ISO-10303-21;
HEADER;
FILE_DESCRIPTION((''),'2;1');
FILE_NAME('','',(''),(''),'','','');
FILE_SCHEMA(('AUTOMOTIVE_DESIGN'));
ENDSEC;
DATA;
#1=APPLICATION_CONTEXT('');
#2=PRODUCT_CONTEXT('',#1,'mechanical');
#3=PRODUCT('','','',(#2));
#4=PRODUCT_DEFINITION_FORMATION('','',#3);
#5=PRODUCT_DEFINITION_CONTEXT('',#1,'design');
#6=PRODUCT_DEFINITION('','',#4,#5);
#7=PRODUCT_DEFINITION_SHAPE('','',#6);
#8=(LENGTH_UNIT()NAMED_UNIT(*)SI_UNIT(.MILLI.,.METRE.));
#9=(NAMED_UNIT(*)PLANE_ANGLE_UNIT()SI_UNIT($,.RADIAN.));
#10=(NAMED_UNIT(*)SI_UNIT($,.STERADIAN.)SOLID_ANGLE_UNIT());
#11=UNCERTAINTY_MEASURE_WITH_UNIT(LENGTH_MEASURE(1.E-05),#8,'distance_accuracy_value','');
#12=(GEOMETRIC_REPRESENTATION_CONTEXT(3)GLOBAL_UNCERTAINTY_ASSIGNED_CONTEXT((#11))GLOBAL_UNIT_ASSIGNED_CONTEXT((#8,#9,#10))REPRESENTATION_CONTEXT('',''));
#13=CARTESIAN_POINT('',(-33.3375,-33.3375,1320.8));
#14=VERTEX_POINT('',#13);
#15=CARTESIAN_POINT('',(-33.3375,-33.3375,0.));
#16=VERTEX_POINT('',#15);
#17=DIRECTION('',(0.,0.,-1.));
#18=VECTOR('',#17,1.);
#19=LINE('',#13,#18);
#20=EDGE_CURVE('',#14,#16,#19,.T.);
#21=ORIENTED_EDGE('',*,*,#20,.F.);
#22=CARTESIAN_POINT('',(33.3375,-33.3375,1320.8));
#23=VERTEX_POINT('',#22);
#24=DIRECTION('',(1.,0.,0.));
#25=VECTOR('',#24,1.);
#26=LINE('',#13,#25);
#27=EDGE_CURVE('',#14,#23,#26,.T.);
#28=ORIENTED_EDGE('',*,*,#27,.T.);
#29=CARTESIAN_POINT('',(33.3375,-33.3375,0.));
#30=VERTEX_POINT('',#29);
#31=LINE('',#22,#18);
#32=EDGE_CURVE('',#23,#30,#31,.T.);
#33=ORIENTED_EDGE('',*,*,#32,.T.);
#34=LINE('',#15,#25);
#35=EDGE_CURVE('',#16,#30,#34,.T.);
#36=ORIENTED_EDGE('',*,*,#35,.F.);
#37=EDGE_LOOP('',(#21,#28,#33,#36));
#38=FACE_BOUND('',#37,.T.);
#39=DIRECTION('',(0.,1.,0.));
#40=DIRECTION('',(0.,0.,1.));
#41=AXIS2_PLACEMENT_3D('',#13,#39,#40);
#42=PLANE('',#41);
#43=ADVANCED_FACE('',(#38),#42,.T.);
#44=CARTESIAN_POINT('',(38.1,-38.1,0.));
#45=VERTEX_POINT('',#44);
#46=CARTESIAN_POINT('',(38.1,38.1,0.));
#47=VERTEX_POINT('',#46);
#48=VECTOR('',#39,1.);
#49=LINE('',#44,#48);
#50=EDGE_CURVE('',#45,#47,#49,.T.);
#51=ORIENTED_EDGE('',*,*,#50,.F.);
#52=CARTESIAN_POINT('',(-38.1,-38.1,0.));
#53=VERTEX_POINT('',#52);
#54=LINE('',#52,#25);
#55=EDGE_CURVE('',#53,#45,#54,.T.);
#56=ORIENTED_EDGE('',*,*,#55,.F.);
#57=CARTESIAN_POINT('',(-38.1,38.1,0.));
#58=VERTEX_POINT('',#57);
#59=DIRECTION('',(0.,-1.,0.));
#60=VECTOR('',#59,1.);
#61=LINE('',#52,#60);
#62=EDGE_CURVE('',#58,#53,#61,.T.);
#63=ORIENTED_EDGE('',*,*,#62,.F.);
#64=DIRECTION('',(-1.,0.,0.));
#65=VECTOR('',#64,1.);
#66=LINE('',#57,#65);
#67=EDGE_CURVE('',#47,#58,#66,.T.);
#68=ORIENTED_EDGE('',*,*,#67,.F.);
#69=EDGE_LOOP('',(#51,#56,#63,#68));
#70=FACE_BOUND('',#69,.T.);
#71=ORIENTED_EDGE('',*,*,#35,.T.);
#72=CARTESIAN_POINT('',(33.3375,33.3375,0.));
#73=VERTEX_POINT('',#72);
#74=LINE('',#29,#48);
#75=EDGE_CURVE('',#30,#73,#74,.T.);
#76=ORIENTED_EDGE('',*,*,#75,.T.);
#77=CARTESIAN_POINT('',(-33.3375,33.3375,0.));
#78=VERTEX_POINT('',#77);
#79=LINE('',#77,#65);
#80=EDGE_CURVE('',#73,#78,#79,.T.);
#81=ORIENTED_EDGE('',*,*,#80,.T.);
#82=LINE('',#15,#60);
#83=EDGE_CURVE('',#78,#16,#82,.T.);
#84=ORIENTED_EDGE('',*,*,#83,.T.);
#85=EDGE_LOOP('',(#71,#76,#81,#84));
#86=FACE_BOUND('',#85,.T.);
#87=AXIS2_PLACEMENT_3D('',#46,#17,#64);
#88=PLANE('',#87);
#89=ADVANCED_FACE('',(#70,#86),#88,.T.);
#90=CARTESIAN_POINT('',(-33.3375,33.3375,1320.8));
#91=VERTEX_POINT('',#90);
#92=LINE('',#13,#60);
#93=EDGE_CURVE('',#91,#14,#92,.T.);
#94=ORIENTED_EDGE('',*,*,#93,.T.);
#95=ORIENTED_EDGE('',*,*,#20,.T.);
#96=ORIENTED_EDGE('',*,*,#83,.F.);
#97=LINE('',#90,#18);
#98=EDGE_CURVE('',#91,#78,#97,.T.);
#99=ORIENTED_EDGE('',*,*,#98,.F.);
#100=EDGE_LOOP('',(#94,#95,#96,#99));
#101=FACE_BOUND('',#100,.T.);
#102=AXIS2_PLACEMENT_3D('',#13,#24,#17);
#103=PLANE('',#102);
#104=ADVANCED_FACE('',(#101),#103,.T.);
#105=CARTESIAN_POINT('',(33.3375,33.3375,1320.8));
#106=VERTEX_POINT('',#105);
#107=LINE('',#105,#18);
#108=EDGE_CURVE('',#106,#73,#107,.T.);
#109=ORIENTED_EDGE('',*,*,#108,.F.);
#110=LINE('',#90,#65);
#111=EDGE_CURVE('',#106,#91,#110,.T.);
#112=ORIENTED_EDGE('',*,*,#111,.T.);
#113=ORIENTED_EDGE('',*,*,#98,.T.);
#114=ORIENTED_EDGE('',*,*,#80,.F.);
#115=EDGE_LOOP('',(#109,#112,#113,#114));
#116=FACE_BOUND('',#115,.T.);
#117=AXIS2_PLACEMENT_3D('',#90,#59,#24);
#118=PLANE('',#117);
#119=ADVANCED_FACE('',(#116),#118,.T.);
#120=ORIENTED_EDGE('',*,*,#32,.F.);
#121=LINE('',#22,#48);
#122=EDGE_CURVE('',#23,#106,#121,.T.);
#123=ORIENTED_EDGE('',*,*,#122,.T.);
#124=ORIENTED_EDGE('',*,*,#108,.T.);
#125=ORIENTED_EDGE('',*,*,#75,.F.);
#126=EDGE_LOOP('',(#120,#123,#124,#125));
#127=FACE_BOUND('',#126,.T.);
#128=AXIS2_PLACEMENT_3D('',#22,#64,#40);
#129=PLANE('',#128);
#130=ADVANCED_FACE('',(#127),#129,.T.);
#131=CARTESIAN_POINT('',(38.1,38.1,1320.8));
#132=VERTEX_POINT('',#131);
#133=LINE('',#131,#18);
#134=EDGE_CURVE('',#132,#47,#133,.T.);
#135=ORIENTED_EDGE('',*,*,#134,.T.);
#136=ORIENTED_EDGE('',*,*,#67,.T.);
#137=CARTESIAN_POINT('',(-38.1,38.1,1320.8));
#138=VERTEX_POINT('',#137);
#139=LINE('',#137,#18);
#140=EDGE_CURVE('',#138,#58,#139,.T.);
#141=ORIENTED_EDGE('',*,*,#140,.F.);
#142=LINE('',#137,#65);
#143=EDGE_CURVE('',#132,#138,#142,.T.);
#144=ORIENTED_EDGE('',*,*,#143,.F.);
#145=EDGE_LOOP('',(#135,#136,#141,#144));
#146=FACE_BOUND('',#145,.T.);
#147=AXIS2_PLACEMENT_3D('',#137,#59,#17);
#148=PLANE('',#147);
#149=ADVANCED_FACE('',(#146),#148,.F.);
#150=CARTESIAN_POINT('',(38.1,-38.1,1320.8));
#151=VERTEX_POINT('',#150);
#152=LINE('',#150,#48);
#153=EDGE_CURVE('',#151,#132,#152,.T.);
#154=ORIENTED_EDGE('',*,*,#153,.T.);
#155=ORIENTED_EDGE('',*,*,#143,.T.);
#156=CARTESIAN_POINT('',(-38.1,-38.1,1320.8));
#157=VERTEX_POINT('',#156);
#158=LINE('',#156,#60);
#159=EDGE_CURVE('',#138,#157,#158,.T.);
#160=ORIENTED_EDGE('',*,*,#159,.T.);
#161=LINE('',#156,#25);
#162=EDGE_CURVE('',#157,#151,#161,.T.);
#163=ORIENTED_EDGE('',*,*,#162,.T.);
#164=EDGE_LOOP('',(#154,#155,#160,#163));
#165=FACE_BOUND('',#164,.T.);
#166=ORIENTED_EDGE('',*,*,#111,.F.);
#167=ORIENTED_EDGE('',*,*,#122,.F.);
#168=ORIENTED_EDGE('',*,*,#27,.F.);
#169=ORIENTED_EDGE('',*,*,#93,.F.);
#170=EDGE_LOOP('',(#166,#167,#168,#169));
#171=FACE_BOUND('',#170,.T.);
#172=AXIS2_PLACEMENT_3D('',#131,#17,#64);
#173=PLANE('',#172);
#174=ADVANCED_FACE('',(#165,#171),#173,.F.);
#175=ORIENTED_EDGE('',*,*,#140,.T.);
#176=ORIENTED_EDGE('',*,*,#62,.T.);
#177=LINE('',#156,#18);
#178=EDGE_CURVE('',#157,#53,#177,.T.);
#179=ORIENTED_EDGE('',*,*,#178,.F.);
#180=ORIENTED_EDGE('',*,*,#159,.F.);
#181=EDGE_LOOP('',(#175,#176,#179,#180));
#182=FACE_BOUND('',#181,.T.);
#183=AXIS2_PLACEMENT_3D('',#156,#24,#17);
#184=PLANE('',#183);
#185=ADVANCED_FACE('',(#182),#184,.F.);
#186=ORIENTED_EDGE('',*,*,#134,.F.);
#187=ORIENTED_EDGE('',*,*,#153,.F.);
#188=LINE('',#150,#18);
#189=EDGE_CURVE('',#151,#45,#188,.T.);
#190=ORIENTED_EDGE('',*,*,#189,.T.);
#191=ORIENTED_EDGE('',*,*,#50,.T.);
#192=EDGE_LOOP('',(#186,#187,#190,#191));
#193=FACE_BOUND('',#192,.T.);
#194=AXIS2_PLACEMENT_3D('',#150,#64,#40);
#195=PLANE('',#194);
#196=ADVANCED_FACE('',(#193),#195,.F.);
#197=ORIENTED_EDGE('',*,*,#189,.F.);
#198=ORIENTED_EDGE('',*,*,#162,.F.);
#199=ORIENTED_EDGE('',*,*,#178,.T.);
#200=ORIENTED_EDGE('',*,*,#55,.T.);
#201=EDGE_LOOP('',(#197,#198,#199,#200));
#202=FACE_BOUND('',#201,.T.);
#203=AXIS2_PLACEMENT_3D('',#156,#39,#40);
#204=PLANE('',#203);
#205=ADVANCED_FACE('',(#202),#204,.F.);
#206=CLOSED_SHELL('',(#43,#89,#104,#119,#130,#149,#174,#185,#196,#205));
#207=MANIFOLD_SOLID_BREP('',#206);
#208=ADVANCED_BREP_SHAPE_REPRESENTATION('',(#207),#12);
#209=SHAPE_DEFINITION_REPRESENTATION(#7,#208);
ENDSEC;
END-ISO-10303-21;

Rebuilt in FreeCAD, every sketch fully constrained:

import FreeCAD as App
import Part
import Sketcher
from FreeCAD import Vector
Q = App.Units.Quantity

doc = App.newDocument("Part")
body = doc.addObject("PartDesign::Body", "Body")

# Sketch on XY plane
sketch1 = body.newObject("Sketcher::SketchObject", "Sketch")
sketch1.AttachmentSupport = (doc.getObject("XY_Plane"), [""])
sketch1.MapMode = "FlatFace"
sketch1.addGeometry(Part.LineSegment(Vector(-38, 38, 0), Vector(-38, -38, 0)), False)
sketch1.addGeometry(Part.LineSegment(Vector(-38, -38, 0), Vector(38, -38, 0)), False)
sketch1.addGeometry(Part.LineSegment(Vector(38, -38, 0), Vector(38, 38, 0)), False)
sketch1.addGeometry(Part.LineSegment(Vector(38, 38, 0), Vector(-38, 38, 0)), False)
sketch1.addGeometry(Part.LineSegment(Vector(33, -33, 0), Vector(-33, -33, 0)), False)
sketch1.addGeometry(Part.LineSegment(Vector(-33, -33, 0), Vector(-33, 33, 0)), False)
sketch1.addGeometry(Part.LineSegment(Vector(-33, 33, 0), Vector(33, 33, 0)), False)
sketch1.addGeometry(Part.LineSegment(Vector(33, 33, 0), Vector(33, -33, 0)), False)
sketch1.addConstraint(Sketcher.Constraint("Coincident", 0, 2, 1, 1))
sketch1.addConstraint(Sketcher.Constraint("Coincident", 1, 2, 2, 1))
sketch1.addConstraint(Sketcher.Constraint("Coincident", 2, 2, 3, 1))
sketch1.addConstraint(Sketcher.Constraint("Coincident", 3, 2, 0, 1))
sketch1.addConstraint(Sketcher.Constraint("Coincident", 4, 2, 5, 1))
sketch1.addConstraint(Sketcher.Constraint("Coincident", 5, 2, 6, 1))
sketch1.addConstraint(Sketcher.Constraint("Coincident", 6, 2, 7, 1))
sketch1.addConstraint(Sketcher.Constraint("Coincident", 7, 2, 4, 1))
sketch1.addConstraint(Sketcher.Constraint("Vertical", 0))
sketch1.addConstraint(Sketcher.Constraint("Horizontal", 1))
sketch1.addConstraint(Sketcher.Constraint("Vertical", 2))
sketch1.addConstraint(Sketcher.Constraint("Horizontal", 3))
sketch1.addConstraint(Sketcher.Constraint("Horizontal", 4))
sketch1.addConstraint(Sketcher.Constraint("Vertical", 5))
sketch1.addConstraint(Sketcher.Constraint("Horizontal", 6))
sketch1.addConstraint(Sketcher.Constraint("Vertical", 7))
sketch1.addConstraint(Sketcher.Constraint("Symmetric", 0, 2, 2, 2, -1, 1))
sketch1.addConstraint(Sketcher.Constraint("Symmetric", 4, 2, 6, 2, -1, 1))
sketch1.addConstraint(Sketcher.Constraint("Equal", 3, 0))
sketch1.addConstraint(Sketcher.Constraint("Equal", 6, 5))
sketch1.addConstraint(Sketcher.Constraint("DistanceX", 1, 1, 1, 2, Q("3 in")))
sketch1.addConstraint(Sketcher.Constraint("DistanceX", 4, 2, 4, 1, Q("2.625 in")))
pad1 = body.newObject("PartDesign::Pad", "Pad")
pad1.Profile = sketch1
pad1.Length = Q("52 in")

doc.recompute()
